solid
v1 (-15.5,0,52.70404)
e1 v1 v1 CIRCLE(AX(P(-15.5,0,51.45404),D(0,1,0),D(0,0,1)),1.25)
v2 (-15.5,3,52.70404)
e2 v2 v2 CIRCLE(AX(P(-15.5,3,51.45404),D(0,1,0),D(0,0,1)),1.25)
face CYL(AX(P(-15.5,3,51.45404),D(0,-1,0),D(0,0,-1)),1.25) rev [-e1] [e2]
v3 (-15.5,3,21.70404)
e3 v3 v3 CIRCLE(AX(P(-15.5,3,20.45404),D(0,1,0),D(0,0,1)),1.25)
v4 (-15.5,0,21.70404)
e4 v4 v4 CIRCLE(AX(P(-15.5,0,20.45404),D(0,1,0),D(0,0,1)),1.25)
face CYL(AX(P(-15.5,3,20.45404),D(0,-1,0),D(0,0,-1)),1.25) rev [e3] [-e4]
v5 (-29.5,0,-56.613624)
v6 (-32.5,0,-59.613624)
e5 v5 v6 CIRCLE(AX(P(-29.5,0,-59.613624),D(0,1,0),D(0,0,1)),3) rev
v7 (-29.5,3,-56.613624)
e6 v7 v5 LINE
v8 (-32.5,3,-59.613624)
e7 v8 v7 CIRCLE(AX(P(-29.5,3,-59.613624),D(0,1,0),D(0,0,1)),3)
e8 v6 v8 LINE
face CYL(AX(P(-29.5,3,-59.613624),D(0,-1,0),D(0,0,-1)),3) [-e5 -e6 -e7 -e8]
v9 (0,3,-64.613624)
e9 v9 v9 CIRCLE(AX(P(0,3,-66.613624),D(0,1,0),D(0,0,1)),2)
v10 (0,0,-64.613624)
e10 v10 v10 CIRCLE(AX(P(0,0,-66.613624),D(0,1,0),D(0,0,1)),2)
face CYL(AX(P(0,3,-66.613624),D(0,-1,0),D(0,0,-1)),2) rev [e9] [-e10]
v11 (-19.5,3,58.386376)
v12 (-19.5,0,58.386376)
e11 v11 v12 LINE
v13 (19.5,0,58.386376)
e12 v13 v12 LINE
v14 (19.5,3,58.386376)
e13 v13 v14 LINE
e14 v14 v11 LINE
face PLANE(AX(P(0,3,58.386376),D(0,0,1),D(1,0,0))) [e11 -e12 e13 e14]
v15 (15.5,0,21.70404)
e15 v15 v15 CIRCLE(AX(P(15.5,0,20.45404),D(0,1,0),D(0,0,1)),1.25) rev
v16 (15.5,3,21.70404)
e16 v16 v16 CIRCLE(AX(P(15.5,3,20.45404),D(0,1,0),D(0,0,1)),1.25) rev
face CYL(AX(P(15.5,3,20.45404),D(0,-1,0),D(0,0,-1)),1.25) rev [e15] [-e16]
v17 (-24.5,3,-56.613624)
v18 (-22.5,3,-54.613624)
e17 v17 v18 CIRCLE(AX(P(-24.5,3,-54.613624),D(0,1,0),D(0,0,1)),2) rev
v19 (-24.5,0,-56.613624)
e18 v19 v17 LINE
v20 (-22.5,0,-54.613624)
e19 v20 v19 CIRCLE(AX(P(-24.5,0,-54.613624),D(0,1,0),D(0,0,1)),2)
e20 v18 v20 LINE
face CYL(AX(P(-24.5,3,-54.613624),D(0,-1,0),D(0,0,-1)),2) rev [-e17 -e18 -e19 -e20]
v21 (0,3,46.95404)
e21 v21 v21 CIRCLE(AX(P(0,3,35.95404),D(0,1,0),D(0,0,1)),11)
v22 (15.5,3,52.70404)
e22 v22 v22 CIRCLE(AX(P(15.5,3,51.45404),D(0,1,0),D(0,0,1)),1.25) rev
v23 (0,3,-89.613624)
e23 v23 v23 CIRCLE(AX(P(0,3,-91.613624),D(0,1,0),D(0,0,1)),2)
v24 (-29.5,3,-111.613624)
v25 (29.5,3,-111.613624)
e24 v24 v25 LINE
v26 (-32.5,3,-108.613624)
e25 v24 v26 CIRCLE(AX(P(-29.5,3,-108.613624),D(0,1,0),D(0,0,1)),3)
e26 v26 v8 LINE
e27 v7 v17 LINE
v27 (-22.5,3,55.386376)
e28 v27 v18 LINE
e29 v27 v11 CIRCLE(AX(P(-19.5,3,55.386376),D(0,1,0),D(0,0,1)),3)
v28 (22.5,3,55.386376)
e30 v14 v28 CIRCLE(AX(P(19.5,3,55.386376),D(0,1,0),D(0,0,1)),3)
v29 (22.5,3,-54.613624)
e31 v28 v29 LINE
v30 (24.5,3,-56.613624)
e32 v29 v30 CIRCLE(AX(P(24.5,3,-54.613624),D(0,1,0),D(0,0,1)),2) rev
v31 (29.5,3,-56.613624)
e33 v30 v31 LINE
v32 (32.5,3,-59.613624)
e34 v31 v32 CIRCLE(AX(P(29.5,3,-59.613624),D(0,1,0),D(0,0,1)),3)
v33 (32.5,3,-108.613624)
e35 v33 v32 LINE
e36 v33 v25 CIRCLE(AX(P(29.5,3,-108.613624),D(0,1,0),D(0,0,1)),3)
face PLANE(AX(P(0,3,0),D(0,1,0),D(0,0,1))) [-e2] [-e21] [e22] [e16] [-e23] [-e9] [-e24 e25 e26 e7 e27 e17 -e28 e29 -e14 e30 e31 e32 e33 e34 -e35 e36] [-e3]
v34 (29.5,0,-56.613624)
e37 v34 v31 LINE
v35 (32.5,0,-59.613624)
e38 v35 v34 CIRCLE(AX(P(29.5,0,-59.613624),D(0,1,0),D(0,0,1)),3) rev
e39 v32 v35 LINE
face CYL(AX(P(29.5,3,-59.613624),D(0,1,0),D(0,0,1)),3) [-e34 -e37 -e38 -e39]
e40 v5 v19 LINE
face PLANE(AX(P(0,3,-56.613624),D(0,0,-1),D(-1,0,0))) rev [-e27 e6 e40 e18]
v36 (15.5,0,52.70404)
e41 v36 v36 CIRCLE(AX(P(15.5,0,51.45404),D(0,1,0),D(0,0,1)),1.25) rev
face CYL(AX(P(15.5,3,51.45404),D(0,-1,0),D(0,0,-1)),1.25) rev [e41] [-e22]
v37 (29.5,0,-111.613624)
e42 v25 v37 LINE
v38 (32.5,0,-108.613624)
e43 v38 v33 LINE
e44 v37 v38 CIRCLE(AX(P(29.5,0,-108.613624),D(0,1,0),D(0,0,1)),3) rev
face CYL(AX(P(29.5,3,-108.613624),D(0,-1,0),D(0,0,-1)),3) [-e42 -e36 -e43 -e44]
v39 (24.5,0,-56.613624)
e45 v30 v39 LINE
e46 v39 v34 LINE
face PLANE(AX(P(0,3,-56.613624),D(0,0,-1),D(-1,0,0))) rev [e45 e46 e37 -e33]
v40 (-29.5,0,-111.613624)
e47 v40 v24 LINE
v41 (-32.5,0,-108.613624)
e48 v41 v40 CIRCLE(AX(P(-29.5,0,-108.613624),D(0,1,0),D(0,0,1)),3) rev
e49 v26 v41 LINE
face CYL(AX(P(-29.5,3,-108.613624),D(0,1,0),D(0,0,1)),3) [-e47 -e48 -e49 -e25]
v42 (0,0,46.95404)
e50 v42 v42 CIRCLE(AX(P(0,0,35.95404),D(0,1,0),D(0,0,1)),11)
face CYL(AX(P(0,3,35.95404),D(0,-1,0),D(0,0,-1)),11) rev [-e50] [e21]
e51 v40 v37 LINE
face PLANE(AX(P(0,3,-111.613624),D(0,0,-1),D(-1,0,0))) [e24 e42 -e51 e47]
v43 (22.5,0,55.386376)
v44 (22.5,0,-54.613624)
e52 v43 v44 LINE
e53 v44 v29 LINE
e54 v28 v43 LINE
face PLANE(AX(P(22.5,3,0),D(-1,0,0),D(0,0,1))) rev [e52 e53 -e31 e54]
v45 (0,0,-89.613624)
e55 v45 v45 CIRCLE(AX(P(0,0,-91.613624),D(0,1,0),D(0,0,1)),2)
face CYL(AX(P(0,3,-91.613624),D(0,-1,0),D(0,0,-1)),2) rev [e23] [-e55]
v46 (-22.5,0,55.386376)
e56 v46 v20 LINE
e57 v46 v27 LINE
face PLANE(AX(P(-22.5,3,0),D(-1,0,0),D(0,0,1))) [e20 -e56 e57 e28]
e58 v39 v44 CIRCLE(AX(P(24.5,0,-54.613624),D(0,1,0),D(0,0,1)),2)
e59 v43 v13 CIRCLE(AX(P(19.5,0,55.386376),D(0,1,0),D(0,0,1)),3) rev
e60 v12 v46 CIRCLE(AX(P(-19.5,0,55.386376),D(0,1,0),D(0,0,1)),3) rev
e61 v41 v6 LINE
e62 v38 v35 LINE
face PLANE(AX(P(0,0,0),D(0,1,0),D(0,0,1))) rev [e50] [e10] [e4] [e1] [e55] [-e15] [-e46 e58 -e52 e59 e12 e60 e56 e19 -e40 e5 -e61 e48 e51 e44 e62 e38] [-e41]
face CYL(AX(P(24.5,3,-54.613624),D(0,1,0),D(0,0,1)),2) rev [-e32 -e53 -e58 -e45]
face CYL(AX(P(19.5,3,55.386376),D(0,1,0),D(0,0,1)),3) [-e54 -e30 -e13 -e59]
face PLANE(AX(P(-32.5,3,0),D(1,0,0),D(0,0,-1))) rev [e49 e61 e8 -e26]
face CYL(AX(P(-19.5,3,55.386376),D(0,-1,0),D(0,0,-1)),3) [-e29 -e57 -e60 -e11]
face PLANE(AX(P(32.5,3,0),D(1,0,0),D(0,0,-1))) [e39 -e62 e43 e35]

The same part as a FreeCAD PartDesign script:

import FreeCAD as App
import Part
import Sketcher

V = App.Vector
Q = App.Units.Quantity


def edges_at(feature, points):
    """Names of the edges that pass closest to the given points."""
    edges = feature.Shape.Edges
    near = lambda p: min(range(len(edges)), key=lambda i: edges[i].distToShape(Part.Vertex(*p))[0])
    return sorted({f"Edge{near(p) + 1}" for p in points})


def add_polygon(sketch, points):
    """Adds a closed chain of lines whose ends are joined by coincident constraints."""
    first, n = sketch.GeometryCount, len(points)
    for a, b in zip(points, points[1:] + points[:1]):
        sketch.addGeometry(Part.LineSegment(App.Vector(*a, 0), App.Vector(*b, 0)), False)
    for i in range(n):
        sketch.addConstraint(Sketcher.Constraint("Coincident", first + i, 2, first + (i + 1) % n, 1))

doc = App.newDocument("Part")
body = doc.addObject("PartDesign::Body", "Body")

sketch1 = doc.addObject("Sketcher::SketchObject", "Sketch")
body.addObject(sketch1)
sketch1.AttachmentSupport = (doc.XZ_Plane, [""])
sketch1.MapMode = "FlatFace"
add_polygon(sketch1, [(-32.5, -111.6), (-32.5, -56.6), (-22.5, -56.6), (-22.5, 58.4), (22.5, 58.4), (22.5, -56.6), (32.5, -56.6), (32.5, -111.6)])
sketch1.addGeometry(Part.Circle(V(-15.5, 51.5, 0), V(0, 0, 1), 1.2), False)
sketch1.addGeometry(Part.Circle(V(-15.5, 20.5, 0), V(0, 0, 1), 1.2), False)
sketch1.addGeometry(Part.Circle(V(0, 36, 0), V(0, 0, 1), 11), False)
sketch1.addGeometry(Part.Circle(V(15.5, 51.5, 0), V(0, 0, 1), 1.2), False)
sketch1.addGeometry(Part.Circle(V(15.5, 20.5, 0), V(0, 0, 1), 1.2), False)
sketch1.addGeometry(Part.Circle(V(0, -66.6, 0), V(0, 0, 1), 2), False)
sketch1.addGeometry(Part.Circle(V(0, -91.6, 0), V(0, 0, 1), 2), False)
sketch1.addConstraint(Sketcher.Constraint("Vertical", 0))
sketch1.addConstraint(Sketcher.Constraint("Horizontal", 1))
sketch1.addConstraint(Sketcher.Constraint("Vertical", 2))
sketch1.addConstraint(Sketcher.Constraint("Horizontal", 3))
sketch1.addConstraint(Sketcher.Constraint("Vertical", 4))
sketch1.addConstraint(Sketcher.Constraint("Horizontal", 5))
sketch1.addConstraint(Sketcher.Constraint("Vertical", 6))
sketch1.addConstraint(Sketcher.Constraint("Horizontal", 7))
sketch1.addConstraint(Sketcher.Constraint("Equal", 8, 9))
sketch1.addConstraint(Sketcher.Constraint("Equal", 9, 11))
sketch1.addConstraint(Sketcher.Constraint("Equal", 11, 12))
sketch1.addConstraint(Sketcher.Constraint("Equal", 13, 14))
sketch1.addConstraint(Sketcher.Constraint("Symmetric", 8, 3, 11, 3, -2))
sketch1.addConstraint(Sketcher.Constraint("Symmetric", 9, 3, 12, 3, -2))
sketch1.addConstraint(Sketcher.Constraint("Symmetric", 1, 2, 4, 2, -2))
sketch1.addConstraint(Sketcher.Constraint("PointOnObject", 10, 3, -2))
sketch1.addConstraint(Sketcher.Constraint("PointOnObject", 13, 3, -2))
sketch1.addConstraint(Sketcher.Constraint("PointOnObject", 14, 3, -2))
sketch1.addConstraint(Sketcher.Constraint("Vertical", 8, 3, 9, 3))
sketch1.addConstraint(Sketcher.Constraint("Equal", 1, 5))
sketch1.addConstraint(Sketcher.Constraint("Diameter", 10, Q("22 mm")))
sketch1.addConstraint(Sketcher.Constraint("Diameter", 13, Q("4 mm")))
sketch1.addConstraint(Sketcher.Constraint("Diameter", 8, Q("2.5 mm")))
sketch1.addConstraint(Sketcher.Constraint("DistanceX", 1, 1, 1, 2, Q("10 mm")))
sketch1.addConstraint(Sketcher.Constraint("DistanceX", 3, 1, 3, 2, Q("45 mm")))
sketch1.addConstraint(Sketcher.Constraint("DistanceY", 0, 1, 0, 2, Q("55 mm")))
sketch1.addConstraint(Sketcher.Constraint("DistanceY", 2, 1, 2, 2, Q("115 mm")))
sketch1.addConstraint(Sketcher.Constraint("DistanceY", 9, 3, 8, 3, Q("31 mm")))
sketch1.addConstraint(Sketcher.Constraint("DistanceX", 8, 3, 11, 3, Q("31 mm")))
sketch1.addConstraint(Sketcher.Constraint("DistanceY", 14, 3, 13, 3, Q("25 mm")))
sketch1.addConstraint(Sketcher.Constraint("DistanceY", 13, 3, 0, 2, Q("10 mm")))
sketch1.addConstraint(Sketcher.Constraint("DistanceY", 9, 3, 10, 3, Q("15.5 mm")))
sketch1.addConstraint(Sketcher.Constraint("DistanceY", -1, 1, 8, 3, Q("51.45404 mm")))
sketch1.addConstraint(Sketcher.Constraint("DistanceY", 13, 3, -1, 1, Q("66.613624 mm")))
pad1 = doc.addObject("PartDesign::Pad", "Pad")
body.addObject(pad1)
pad1.Profile = sketch1
pad1.Length = 3
pad1.Reversed = True
doc.recompute()

fillet = doc.addObject("PartDesign::Fillet", "Fillet")
body.addObject(fillet)
fillet.Base = (pad1, edges_at(pad1, [(32.5, 1.5, -111.614)]))
fillet.Radius = 3
doc.recompute()

fillet2 = doc.addObject("PartDesign::Fillet", "Fillet001")
body.addObject(fillet2)
fillet2.Base = (fillet, edges_at(fillet, [(-32.5, 1.5, -111.614)]))
fillet2.Radius = 3
doc.recompute()

fillet3 = doc.addObject("PartDesign::Fillet", "Fillet002")
body.addObject(fillet3)
fillet3.Base = (fillet2, edges_at(fillet2, [(-32.5, 1.5, -56.614)]))
fillet3.Radius = 3
doc.recompute()

fillet4 = doc.addObject("PartDesign::Fillet", "Fillet003")
body.addObject(fillet4)
fillet4.Base = (fillet3, edges_at(fillet3, [(32.5, 1.5, -56.614)]))
fillet4.Radius = 3
doc.recompute()

fillet5 = doc.addObject("PartDesign::Fillet", "Fillet004")
body.addObject(fillet5)
fillet5.Base = (fillet4, edges_at(fillet4, [(22.5, 1.5, 58.386)]))
fillet5.Radius = 3
doc.recompute()

fillet6 = doc.addObject("PartDesign::Fillet", "Fillet005")
body.addObject(fillet6)
fillet6.Base = (fillet5, edges_at(fillet5, [(-22.5, 1.5, 58.386)]))
fillet6.Radius = 3
doc.recompute()

fillet7 = doc.addObject("PartDesign::Fillet", "Fillet006")
body.addObject(fillet7)
fillet7.Base = (fillet6, edges_at(fillet6, [(-22.5, 1.5, -56.614)]))
fillet7.Radius = 2
doc.recompute()

fillet8 = doc.addObject("PartDesign::Fillet", "Fillet007")
body.addObject(fillet8)
fillet8.Base = (fillet7, edges_at(fillet7, [(22.5, 1.5, -56.614)]))
fillet8.Radius = 2

doc.recompute()
